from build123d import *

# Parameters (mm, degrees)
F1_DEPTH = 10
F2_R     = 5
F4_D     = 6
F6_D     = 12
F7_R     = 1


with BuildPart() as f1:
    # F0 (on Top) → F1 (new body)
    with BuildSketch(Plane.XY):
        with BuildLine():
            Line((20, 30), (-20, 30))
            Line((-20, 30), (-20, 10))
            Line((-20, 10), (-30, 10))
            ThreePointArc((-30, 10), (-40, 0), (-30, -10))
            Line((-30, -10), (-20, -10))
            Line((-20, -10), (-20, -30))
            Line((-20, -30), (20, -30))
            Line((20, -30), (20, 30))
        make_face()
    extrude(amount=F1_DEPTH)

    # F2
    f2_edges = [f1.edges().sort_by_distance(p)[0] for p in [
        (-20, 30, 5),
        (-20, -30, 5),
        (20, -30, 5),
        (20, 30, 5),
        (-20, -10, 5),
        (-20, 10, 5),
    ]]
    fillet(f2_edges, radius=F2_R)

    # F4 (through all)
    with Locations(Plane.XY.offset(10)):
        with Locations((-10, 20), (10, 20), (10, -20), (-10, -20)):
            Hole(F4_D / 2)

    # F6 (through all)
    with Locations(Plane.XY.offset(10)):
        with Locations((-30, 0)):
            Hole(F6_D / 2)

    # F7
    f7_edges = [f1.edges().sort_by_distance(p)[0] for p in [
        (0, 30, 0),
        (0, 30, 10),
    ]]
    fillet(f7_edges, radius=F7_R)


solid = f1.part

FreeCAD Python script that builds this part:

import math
import FreeCAD as App
import Part
import Sketcher

V = App.Vector


def edges_at(feature, points):
    """Names of the edges that pass closest to the given points."""
    edges = feature.Shape.Edges
    near = lambda p: min(range(len(edges)), key=lambda i: edges[i].distToShape(Part.Vertex(*p))[0])
    return sorted({f"Edge{near(p) + 1}" for p in points})

doc = App.newDocument("Part")
body = doc.addObject("PartDesign::Body", "Body")

# Sketch on XY plane
sketch1 = body.newObject("Sketcher::SketchObject", "Sketch")
sketch1.AttachmentSupport = (doc.getObject("XY_Plane"), [""])
sketch1.MapMode = "FlatFace"
sketch1.addGeometry([
    Part.LineSegment(V(20, 30, 0), V(-20, 30, 0)),  # 0
    Part.LineSegment(V(-20, 30, 0), V(-20, 10, 0)),  # 1
    Part.LineSegment(V(-20, 10, 0), V(-30, 10, 0)),  # 2
    Part.ArcOfCircle(Part.Circle(V(-30, 0, 0), V(0, 0, 1), 10), math.radians(90), math.radians(270)),  # 3
    Part.LineSegment(V(-30, -10, 0), V(-20, -10, 0)),  # 4
    Part.LineSegment(V(-20, -10, 0), V(-20, -30, 0)),  # 5
    Part.LineSegment(V(-20, -30, 0), V(20, -30, 0)),  # 6
    Part.LineSegment(V(20, -30, 0), V(20, 30, 0)),  # 7
], False)
sketch1.addConstraint([
    Sketcher.Constraint("Coincident", 0, 2, 1, 1),
    Sketcher.Constraint("Coincident", 1, 2, 2, 1),
    Sketcher.Constraint("Tangent", 2, 2, 3, 1),
    Sketcher.Constraint("Tangent", 3, 2, 4, 1),
    Sketcher.Constraint("Coincident", 4, 2, 5, 1),
    Sketcher.Constraint("Coincident", 5, 2, 6, 1),
    Sketcher.Constraint("Coincident", 6, 2, 7, 1),
    Sketcher.Constraint("Coincident", 7, 2, 0, 1),
    Sketcher.Constraint("Horizontal", 0),
    Sketcher.Constraint("Vertical", 1),
    Sketcher.Constraint("Horizontal", 2),
    Sketcher.Constraint("Horizontal", 4),
    Sketcher.Constraint("Vertical", 5),
    Sketcher.Constraint("Horizontal", 6),
    Sketcher.Constraint("Vertical", 7),
    Sketcher.Constraint("Symmetric", 0, 2, 6, 2, -1, 1),
    Sketcher.Constraint("Symmetric", 1, 2, 4, 2, -1),
    Sketcher.Constraint("Radius", 3, 10.0),
    Sketcher.Constraint("DistanceX", 0, 2, 0, 1, 40.0),
    Sketcher.Constraint("DistanceX", 2, 2, 2, 1, 10.0),
    Sketcher.Constraint("DistanceY", 1, 2, 1, 1, 20.0),
])
pad1 = body.newObject("PartDesign::Pad", "Pad")
pad1.Profile = sketch1
pad1.Length = 10
doc.recompute()

fillet = body.newObject("PartDesign::Fillet", "Fillet")
fillet.Base = (pad1, edges_at(pad1, [
    (-20, 30, 5),
    (-20, -30, 5),
    (20, -30, 5),
    (20, 30, 5),
    (-20, -10, 5),
    (-20, 10, 5),
]))
fillet.Radius = 5

# Sketch on XY plane
sketch2 = body.newObject("Sketcher::SketchObject", "Sketch001")
sketch2.AttachmentSupport = (doc.getObject("XY_Plane"), [""])
sketch2.MapMode = "FlatFace"
sketch2.AttachmentOffset = App.Placement(V(0, 0, 10), App.Rotation())
sketch2.addGeometry([
    Part.Circle(V(-10, 20, 0), V(0, 0, 1), 3),
    Part.Circle(V(10, 20, 0), V(0, 0, 1), 3),
    Part.Circle(V(10, -20, 0), V(0, 0, 1), 3),
    Part.Circle(V(-10, -20, 0), V(0, 0, 1), 3),
], False)
sketch2.addConstraint([
    Sketcher.Constraint("Equal", 0, 1),
    Sketcher.Constraint("Equal", 1, 2),
    Sketcher.Constraint("Equal", 2, 3),
    Sketcher.Constraint("Symmetric", 0, 3, 2, 3, -1, 1),
    Sketcher.Constraint("Symmetric", 1, 3, 3, 3, -1, 1),
    Sketcher.Constraint("Symmetric", 0, 3, 1, 3, -2),
    Sketcher.Constraint("Diameter", 0, 6.0),
    Sketcher.Constraint("DistanceX", 0, 3, -1, 1, 10.0),
    Sketcher.Constraint("DistanceY", -1, 1, 0, 3, 20.0),
])
doc.recompute()
hole = body.newObject("PartDesign::Hole", "Hole")
hole.Profile = sketch2
hole.ThreadType = "None"
hole.Diameter = 6
hole.DepthType = "ThroughAll"

# Sketch on XY plane
sketch3 = body.newObject("Sketcher::SketchObject", "Sketch002")
sketch3.AttachmentSupport = (doc.getObject("XY_Plane"), [""])
sketch3.MapMode = "FlatFace"
sketch3.AttachmentOffset = App.Placement(V(0, 0, 10), App.Rotation())
sketch3.addGeometry(Part.Circle(V(-30, 0, 0), V(0, 0, 1), 6), False)
sketch3.addConstraint([
    Sketcher.Constraint("PointOnObject", 0, 3, -1),
    Sketcher.Constraint("Diameter", 0, 12.0),
    Sketcher.Constraint("DistanceX", 0, 3, -1, 1, 30.0),
])
doc.recompute()
hole2 = body.newObject("PartDesign::Hole", "Hole001")
hole2.Profile = sketch3
hole2.ThreadType = "None"
hole2.Diameter = 12
hole2.DepthType = "ThroughAll"
doc.recompute()

fillet2 = body.newObject("PartDesign::Fillet", "Fillet001")
fillet2.Base = (hole2, edges_at(hole2, [(0, 30, 0), (0, 30, 10)]))
fillet2.Radius = 1

doc.recompute()
